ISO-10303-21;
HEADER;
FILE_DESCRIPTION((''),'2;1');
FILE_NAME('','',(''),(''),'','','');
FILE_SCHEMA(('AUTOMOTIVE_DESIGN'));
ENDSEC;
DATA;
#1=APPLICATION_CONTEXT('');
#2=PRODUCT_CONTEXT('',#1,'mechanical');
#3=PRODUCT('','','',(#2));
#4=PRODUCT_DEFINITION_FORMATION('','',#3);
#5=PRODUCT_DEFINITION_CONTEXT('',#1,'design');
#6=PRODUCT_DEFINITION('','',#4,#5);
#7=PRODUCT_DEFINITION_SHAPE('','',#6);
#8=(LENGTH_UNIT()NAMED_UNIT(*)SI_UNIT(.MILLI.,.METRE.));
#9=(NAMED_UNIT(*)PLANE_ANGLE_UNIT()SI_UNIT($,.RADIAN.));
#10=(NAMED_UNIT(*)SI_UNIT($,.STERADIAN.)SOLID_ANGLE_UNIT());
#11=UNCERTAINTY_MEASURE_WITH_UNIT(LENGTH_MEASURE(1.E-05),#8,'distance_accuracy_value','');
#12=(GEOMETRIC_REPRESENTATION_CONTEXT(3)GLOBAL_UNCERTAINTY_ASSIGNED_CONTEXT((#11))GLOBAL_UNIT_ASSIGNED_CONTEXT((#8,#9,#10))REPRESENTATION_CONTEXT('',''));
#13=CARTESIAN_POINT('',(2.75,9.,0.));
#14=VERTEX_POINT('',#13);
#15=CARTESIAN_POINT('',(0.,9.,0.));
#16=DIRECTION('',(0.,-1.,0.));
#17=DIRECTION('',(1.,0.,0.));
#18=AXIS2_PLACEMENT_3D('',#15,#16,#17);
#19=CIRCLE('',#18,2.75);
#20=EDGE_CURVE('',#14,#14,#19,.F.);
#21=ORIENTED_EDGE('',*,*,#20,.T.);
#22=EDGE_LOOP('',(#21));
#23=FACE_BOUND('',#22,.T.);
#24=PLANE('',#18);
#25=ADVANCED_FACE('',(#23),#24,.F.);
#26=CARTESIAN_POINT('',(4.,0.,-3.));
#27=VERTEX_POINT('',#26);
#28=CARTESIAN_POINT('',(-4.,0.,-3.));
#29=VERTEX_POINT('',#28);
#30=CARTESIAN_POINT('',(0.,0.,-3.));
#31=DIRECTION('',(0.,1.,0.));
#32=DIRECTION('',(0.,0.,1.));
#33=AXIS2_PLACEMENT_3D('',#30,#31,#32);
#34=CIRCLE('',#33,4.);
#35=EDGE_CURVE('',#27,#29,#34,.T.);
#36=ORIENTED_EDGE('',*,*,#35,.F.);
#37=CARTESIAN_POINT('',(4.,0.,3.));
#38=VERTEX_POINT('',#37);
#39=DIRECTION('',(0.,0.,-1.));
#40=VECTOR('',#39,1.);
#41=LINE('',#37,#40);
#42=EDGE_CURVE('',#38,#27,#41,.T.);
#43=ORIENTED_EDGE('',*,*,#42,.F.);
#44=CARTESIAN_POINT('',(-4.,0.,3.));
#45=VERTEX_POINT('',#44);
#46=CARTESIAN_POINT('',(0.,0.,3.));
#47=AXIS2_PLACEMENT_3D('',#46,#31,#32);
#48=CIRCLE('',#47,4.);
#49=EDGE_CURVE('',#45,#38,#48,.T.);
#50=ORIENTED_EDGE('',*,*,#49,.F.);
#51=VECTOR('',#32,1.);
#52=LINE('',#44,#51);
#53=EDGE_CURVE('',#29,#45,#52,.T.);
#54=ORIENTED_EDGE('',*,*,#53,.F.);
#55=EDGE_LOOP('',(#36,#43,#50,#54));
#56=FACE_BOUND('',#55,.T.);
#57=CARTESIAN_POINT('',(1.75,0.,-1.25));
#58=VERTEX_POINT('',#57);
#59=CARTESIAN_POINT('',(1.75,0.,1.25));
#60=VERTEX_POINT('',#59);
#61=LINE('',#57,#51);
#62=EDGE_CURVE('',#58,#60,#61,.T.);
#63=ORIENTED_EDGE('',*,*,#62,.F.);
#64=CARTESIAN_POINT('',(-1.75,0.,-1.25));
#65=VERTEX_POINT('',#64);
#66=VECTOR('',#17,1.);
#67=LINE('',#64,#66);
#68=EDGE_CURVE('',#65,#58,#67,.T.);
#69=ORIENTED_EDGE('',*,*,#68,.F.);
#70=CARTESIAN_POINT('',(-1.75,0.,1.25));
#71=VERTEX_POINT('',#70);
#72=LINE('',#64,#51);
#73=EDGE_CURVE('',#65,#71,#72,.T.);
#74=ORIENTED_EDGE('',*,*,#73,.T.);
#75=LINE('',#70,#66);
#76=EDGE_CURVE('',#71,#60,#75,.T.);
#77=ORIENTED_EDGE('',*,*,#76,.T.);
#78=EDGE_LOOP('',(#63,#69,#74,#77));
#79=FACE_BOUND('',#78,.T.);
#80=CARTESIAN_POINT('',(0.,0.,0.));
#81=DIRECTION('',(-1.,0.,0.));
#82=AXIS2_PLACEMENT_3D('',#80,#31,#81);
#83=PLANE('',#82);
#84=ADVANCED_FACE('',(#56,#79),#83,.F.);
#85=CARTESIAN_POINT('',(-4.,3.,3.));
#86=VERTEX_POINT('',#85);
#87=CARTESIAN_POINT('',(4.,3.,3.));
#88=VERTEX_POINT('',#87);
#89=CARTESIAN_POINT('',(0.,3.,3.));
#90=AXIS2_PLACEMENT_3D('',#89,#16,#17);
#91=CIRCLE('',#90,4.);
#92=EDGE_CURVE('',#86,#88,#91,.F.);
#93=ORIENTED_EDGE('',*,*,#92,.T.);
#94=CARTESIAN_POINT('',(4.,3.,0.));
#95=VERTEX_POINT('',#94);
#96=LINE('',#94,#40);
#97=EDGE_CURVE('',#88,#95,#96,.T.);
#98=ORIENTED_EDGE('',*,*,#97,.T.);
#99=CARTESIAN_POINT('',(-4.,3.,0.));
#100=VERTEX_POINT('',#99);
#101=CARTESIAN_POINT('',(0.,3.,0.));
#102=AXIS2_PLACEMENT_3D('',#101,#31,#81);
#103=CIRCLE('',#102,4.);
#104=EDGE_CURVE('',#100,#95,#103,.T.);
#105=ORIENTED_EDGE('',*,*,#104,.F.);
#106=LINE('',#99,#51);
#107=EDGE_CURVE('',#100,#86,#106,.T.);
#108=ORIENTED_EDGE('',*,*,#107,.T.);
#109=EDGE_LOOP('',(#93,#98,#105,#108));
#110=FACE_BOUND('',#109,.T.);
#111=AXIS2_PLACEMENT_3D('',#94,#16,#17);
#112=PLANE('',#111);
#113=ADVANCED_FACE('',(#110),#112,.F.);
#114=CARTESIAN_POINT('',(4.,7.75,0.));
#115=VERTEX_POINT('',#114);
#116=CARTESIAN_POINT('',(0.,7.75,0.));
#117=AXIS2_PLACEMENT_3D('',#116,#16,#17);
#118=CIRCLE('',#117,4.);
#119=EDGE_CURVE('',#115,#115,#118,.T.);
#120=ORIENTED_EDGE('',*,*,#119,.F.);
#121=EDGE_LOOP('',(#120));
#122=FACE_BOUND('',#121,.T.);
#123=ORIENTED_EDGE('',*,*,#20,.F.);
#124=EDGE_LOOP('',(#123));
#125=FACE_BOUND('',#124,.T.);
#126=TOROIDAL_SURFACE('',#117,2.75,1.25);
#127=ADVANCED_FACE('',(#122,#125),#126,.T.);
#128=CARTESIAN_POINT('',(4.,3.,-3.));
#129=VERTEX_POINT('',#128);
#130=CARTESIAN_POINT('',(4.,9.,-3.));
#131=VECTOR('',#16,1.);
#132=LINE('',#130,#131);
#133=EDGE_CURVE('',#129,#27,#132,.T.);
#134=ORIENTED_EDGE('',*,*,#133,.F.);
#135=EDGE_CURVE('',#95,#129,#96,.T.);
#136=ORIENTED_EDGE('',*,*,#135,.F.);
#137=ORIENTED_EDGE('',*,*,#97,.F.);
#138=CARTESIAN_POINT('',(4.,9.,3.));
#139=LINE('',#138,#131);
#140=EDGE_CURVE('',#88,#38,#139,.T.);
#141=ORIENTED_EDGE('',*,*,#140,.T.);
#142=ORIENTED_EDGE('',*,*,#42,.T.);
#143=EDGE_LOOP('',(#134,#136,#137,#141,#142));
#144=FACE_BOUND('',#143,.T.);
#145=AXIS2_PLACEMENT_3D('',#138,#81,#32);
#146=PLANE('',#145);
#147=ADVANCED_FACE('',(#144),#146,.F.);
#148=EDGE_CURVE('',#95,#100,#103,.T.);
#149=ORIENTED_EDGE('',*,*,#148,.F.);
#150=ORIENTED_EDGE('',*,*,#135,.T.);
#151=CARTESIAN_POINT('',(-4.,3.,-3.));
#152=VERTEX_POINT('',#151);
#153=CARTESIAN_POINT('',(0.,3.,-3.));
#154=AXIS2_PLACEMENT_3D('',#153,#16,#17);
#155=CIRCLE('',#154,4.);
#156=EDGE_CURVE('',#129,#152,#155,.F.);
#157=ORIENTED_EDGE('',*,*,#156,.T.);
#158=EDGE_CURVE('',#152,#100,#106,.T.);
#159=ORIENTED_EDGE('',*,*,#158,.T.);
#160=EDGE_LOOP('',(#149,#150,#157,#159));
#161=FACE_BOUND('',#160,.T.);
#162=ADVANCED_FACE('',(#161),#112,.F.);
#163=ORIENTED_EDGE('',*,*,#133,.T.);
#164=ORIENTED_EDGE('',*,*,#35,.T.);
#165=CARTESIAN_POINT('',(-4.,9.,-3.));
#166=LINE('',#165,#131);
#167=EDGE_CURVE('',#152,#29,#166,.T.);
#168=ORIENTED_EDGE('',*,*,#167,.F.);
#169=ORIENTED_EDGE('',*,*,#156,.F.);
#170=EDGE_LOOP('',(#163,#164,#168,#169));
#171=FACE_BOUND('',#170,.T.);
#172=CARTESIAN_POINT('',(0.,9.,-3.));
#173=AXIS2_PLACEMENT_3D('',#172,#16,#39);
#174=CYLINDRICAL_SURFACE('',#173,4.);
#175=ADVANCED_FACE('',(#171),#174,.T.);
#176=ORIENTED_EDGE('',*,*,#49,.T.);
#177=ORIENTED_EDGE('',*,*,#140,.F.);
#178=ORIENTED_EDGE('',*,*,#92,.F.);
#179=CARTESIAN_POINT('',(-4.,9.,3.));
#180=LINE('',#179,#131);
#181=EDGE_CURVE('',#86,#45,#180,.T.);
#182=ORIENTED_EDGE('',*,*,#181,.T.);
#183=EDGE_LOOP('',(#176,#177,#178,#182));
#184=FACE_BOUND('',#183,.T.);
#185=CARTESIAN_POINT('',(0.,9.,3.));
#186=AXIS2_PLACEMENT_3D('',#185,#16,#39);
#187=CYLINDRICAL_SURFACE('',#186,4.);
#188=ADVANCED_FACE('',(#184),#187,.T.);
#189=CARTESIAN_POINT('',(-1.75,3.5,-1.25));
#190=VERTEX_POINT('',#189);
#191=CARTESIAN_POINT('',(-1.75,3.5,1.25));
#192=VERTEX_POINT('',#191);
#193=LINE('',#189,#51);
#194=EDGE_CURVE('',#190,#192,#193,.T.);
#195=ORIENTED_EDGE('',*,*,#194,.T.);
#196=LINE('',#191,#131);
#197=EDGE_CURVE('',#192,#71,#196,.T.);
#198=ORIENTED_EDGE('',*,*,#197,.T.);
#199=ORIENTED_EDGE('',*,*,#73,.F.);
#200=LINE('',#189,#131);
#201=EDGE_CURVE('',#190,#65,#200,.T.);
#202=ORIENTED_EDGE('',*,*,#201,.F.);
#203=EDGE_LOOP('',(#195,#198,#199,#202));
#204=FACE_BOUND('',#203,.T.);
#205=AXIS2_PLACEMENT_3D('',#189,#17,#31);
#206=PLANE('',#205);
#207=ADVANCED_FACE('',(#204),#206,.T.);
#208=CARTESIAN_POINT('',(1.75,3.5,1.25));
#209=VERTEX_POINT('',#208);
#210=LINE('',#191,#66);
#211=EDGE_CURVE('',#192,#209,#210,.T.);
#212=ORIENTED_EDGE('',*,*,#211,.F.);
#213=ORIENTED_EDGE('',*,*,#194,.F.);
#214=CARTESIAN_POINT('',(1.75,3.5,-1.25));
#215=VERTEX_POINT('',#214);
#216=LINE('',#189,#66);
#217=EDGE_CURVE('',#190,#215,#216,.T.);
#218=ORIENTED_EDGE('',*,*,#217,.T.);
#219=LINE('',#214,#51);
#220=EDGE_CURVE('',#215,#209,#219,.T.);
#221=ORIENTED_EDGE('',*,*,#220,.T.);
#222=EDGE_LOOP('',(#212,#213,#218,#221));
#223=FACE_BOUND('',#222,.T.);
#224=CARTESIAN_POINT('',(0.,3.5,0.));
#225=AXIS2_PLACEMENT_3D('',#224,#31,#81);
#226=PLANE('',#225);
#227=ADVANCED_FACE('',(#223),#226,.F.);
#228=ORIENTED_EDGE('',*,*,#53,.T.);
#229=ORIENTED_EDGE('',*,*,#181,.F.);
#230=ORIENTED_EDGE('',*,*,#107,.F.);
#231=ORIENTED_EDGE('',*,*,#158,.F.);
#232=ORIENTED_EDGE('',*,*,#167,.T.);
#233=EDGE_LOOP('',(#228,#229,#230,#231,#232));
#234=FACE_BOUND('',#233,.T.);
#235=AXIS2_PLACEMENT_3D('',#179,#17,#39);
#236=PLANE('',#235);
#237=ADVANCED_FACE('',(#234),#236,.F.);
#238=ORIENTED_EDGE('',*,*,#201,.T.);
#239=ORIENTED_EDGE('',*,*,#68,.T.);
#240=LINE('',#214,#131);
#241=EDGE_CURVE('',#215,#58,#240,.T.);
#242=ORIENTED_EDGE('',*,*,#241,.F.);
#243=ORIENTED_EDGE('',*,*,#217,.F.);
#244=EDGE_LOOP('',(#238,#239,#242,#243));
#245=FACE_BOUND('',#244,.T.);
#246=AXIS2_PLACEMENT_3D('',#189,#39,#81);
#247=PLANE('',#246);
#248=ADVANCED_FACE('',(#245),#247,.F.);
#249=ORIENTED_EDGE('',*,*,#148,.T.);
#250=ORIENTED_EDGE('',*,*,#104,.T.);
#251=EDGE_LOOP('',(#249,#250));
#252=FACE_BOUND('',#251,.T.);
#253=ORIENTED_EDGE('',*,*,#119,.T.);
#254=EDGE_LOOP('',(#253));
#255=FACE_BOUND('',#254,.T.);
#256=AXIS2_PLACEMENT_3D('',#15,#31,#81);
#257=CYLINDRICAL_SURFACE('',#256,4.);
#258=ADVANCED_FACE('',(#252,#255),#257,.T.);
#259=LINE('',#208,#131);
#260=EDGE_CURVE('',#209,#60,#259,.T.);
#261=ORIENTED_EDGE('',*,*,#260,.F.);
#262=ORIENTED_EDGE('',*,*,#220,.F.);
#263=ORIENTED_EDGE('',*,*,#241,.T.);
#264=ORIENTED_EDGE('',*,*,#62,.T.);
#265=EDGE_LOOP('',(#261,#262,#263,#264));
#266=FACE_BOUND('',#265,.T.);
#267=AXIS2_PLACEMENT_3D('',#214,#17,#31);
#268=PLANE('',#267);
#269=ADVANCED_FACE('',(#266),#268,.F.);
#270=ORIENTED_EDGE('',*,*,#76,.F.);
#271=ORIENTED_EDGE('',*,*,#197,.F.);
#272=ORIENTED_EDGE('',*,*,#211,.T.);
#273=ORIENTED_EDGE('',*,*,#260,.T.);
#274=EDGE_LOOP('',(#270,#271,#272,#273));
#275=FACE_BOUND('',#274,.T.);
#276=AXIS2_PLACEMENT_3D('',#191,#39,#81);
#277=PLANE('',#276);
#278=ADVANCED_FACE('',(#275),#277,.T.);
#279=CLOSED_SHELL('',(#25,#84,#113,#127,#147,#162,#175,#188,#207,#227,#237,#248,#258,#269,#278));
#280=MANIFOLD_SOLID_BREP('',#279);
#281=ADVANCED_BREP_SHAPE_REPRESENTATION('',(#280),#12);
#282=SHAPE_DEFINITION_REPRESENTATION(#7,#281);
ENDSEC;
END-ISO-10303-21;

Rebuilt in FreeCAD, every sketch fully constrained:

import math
import FreeCAD as App
import Part
import Sketcher


def edges_at(feature, points):
    """Names of the edges that pass closest to the given points."""
    edges = feature.Shape.Edges
    near = lambda p: min(range(len(edges)), key=lambda i: edges[i].distToShape(Part.Vertex(*p))[0])
    return sorted({f"Edge{near(p) + 1}" for p in points})


def add_polygon(sketch, points):
    """Adds a closed chain of lines whose ends are joined by coincident constraints."""
    first, n = sketch.GeometryCount, len(points)
    for a, b in zip(points, points[1:] + points[:1]):
        sketch.addGeometry(Part.LineSegment(App.Vector(*a, 0), App.Vector(*b, 0)), False)
    for i in range(n):
        sketch.addConstraint(Sketcher.Constraint("Coincident", first + i, 2, first + (i + 1) % n, 1))

doc = App.newDocument("Part")
body = doc.addObject("PartDesign::Body", "Body")

sketch1 = doc.addObject("Sketcher::SketchObject", "Sketch")
body.addObject(sketch1)
sketch1.AttachmentSupport = (doc.XY_Plane, [""])
sketch1.MapMode = "FlatFace"
add_polygon(sketch1, [(4, 9), (0, 9), (0, 0), (7, 0), (7, 3), (4, 3)])
sketch1.addConstraint(Sketcher.Constraint("Horizontal", 0))
sketch1.addConstraint(Sketcher.Constraint("Vertical", 1))
sketch1.addConstraint(Sketcher.Constraint("Horizontal", 2))
sketch1.addConstraint(Sketcher.Constraint("Vertical", 3))
sketch1.addConstraint(Sketcher.Constraint("Horizontal", 4))
sketch1.addConstraint(Sketcher.Constraint("Vertical", 5))
sketch1.addConstraint(Sketcher.Constraint("Coincident", 1, 2, -1, 1))
sketch1.addConstraint(Sketcher.Constraint("Equal", 4, 3))
sketch1.addConstraint(Sketcher.Constraint("DistanceX", 0, 2, 0, 1, 4.0))
sketch1.addConstraint(Sketcher.Constraint("DistanceX", 2, 1, 2, 2, 7.0))
sketch1.addConstraint(Sketcher.Constraint("DistanceY", 1, 2, 1, 1, 9.0))
revolution = doc.addObject("PartDesign::Revolution", "Revolution")
body.addObject(revolution)
revolution.Profile = sketch1
revolution.ReferenceAxis = (sketch1, ["V_Axis"])
revolution.Angle = 360

sketch2 = doc.addObject("Sketcher::SketchObject", "Sketch001")
body.addObject(sketch2)
sketch2.AttachmentSupport = (doc.XZ_Plane, [""])
sketch2.MapMode = "FlatFace"
add_polygon(sketch2, [(-1.8, 1.2), (-1.8, -1.2), (1.8, -1.2), (1.8, 1.2)])
sketch2.addConstraint(Sketcher.Constraint("Vertical", 0))
sketch2.addConstraint(Sketcher.Constraint("Horizontal", 1))
sketch2.addConstraint(Sketcher.Constraint("Vertical", 2))
sketch2.addConstraint(Sketcher.Constraint("Horizontal", 3))
sketch2.addConstraint(Sketcher.Constraint("Symmetric", 0, 2, 2, 2, -1, 1))
sketch2.addConstraint(Sketcher.Constraint("DistanceX", 1, 1, 1, 2, 3.5))
sketch2.addConstraint(Sketcher.Constraint("DistanceY", 0, 2, 0, 1, 2.5))
pocket1 = doc.addObject("PartDesign::Pocket", "Pocket")
body.addObject(pocket1)
pocket1.Profile = sketch2
pocket1.Length = 3.5
doc.recompute()

fillet = doc.addObject("PartDesign::Fillet", "Fillet")
body.addObject(fillet)
fillet.Base = (pocket1, edges_at(pocket1, [(4, 9, 0)]))
fillet.Radius = 1.25

sketch3 = doc.addObject("Sketcher::SketchObject", "Sketch002")
body.addObject(sketch3)
sketch3.AttachmentSupport = (doc.XZ_Plane, [""])
sketch3.MapMode = "FlatFace"
sketch3.addGeometry(Part.LineSegment(App.Vector(-14, -3, 0), App.Vector(-14, 3, 0)), False)
sketch3.addGeometry(Part.ArcOfCircle(Part.Circle(App.Vector(0, 3, 0), App.Vector(0, 0, 1), 14), math.radians(0), math.radians(180)), False)
sketch3.addGeometry(Part.LineSegment(App.Vector(14, 3, 0), App.Vector(14, -3, 0)), False)
sketch3.addGeometry(Part.ArcOfCircle(Part.Circle(App.Vector(0, -3, 0), App.Vector(0, 0, 1), 14), math.radians(180), math.radians(360)), False)
sketch3.addGeometry(Part.LineSegment(App.Vector(-4, 3, 0), App.Vector(-4, -3, 0)), False)
sketch3.addGeometry(Part.ArcOfCircle(Part.Circle(App.Vector(0, -3, 0), App.Vector(0, 0, 1), 4), math.radians(180), math.radians(360)), False)
sketch3.addGeometry(Part.LineSegment(App.Vector(4, -3, 0), App.Vector(4, 3, 0)), False)
sketch3.addGeometry(Part.ArcOfCircle(Part.Circle(App.Vector(0, 3, 0), App.Vector(0, 0, 1), 4), math.radians(0), math.radians(180)), False)
sketch3.addConstraint(Sketcher.Constraint("Tangent", 0, 2, 1, 2))
sketch3.addConstraint(Sketcher.Constraint("Tangent", 1, 1, 2, 1))
sketch3.addConstraint(Sketcher.Constraint("Tangent", 2, 2, 3, 2))
sketch3.addConstraint(Sketcher.Constraint("Tangent", 3, 1, 0, 1))
sketch3.addConstraint(Sketcher.Constraint("Tangent", 4, 2, 5, 1))
sketch3.addConstraint(Sketcher.Constraint("Tangent", 5, 2, 6, 1))
sketch3.addConstraint(Sketcher.Constraint("Tangent", 6, 2, 7, 1))
sketch3.addConstraint(Sketcher.Constraint("Tangent", 7, 2, 4, 1))
sketch3.addConstraint(Sketcher.Constraint("Vertical", 0))
sketch3.addConstraint(Sketcher.Constraint("Vertical", 2))
sketch3.addConstraint(Sketcher.Constraint("Vertical", 4))
sketch3.addConstraint(Sketcher.Constraint("Vertical", 6))
sketch3.addConstraint(Sketcher.Constraint("Coincident", 5, 3, 3, 3))
sketch3.addConstraint(Sketcher.Constraint("Symmetric", 1, 3, 3, 3, -1, 1))
sketch3.addConstraint(Sketcher.Constraint("Horizontal", 7, 3, 0, 2))
sketch3.addConstraint(Sketcher.Constraint("Radius", 1, 14.0))
sketch3.addConstraint(Sketcher.Constraint("Radius", 5, 4.0))
sketch3.addConstraint(Sketcher.Constraint("DistanceY", 0, 1, 0, 2, 6.0))
pocket2 = doc.addObject("PartDesign::Pocket", "Pocket001")
body.addObject(pocket2)
pocket2.Profile = sketch3
pocket2.Type = "ThroughAll"

doc.recompute()
